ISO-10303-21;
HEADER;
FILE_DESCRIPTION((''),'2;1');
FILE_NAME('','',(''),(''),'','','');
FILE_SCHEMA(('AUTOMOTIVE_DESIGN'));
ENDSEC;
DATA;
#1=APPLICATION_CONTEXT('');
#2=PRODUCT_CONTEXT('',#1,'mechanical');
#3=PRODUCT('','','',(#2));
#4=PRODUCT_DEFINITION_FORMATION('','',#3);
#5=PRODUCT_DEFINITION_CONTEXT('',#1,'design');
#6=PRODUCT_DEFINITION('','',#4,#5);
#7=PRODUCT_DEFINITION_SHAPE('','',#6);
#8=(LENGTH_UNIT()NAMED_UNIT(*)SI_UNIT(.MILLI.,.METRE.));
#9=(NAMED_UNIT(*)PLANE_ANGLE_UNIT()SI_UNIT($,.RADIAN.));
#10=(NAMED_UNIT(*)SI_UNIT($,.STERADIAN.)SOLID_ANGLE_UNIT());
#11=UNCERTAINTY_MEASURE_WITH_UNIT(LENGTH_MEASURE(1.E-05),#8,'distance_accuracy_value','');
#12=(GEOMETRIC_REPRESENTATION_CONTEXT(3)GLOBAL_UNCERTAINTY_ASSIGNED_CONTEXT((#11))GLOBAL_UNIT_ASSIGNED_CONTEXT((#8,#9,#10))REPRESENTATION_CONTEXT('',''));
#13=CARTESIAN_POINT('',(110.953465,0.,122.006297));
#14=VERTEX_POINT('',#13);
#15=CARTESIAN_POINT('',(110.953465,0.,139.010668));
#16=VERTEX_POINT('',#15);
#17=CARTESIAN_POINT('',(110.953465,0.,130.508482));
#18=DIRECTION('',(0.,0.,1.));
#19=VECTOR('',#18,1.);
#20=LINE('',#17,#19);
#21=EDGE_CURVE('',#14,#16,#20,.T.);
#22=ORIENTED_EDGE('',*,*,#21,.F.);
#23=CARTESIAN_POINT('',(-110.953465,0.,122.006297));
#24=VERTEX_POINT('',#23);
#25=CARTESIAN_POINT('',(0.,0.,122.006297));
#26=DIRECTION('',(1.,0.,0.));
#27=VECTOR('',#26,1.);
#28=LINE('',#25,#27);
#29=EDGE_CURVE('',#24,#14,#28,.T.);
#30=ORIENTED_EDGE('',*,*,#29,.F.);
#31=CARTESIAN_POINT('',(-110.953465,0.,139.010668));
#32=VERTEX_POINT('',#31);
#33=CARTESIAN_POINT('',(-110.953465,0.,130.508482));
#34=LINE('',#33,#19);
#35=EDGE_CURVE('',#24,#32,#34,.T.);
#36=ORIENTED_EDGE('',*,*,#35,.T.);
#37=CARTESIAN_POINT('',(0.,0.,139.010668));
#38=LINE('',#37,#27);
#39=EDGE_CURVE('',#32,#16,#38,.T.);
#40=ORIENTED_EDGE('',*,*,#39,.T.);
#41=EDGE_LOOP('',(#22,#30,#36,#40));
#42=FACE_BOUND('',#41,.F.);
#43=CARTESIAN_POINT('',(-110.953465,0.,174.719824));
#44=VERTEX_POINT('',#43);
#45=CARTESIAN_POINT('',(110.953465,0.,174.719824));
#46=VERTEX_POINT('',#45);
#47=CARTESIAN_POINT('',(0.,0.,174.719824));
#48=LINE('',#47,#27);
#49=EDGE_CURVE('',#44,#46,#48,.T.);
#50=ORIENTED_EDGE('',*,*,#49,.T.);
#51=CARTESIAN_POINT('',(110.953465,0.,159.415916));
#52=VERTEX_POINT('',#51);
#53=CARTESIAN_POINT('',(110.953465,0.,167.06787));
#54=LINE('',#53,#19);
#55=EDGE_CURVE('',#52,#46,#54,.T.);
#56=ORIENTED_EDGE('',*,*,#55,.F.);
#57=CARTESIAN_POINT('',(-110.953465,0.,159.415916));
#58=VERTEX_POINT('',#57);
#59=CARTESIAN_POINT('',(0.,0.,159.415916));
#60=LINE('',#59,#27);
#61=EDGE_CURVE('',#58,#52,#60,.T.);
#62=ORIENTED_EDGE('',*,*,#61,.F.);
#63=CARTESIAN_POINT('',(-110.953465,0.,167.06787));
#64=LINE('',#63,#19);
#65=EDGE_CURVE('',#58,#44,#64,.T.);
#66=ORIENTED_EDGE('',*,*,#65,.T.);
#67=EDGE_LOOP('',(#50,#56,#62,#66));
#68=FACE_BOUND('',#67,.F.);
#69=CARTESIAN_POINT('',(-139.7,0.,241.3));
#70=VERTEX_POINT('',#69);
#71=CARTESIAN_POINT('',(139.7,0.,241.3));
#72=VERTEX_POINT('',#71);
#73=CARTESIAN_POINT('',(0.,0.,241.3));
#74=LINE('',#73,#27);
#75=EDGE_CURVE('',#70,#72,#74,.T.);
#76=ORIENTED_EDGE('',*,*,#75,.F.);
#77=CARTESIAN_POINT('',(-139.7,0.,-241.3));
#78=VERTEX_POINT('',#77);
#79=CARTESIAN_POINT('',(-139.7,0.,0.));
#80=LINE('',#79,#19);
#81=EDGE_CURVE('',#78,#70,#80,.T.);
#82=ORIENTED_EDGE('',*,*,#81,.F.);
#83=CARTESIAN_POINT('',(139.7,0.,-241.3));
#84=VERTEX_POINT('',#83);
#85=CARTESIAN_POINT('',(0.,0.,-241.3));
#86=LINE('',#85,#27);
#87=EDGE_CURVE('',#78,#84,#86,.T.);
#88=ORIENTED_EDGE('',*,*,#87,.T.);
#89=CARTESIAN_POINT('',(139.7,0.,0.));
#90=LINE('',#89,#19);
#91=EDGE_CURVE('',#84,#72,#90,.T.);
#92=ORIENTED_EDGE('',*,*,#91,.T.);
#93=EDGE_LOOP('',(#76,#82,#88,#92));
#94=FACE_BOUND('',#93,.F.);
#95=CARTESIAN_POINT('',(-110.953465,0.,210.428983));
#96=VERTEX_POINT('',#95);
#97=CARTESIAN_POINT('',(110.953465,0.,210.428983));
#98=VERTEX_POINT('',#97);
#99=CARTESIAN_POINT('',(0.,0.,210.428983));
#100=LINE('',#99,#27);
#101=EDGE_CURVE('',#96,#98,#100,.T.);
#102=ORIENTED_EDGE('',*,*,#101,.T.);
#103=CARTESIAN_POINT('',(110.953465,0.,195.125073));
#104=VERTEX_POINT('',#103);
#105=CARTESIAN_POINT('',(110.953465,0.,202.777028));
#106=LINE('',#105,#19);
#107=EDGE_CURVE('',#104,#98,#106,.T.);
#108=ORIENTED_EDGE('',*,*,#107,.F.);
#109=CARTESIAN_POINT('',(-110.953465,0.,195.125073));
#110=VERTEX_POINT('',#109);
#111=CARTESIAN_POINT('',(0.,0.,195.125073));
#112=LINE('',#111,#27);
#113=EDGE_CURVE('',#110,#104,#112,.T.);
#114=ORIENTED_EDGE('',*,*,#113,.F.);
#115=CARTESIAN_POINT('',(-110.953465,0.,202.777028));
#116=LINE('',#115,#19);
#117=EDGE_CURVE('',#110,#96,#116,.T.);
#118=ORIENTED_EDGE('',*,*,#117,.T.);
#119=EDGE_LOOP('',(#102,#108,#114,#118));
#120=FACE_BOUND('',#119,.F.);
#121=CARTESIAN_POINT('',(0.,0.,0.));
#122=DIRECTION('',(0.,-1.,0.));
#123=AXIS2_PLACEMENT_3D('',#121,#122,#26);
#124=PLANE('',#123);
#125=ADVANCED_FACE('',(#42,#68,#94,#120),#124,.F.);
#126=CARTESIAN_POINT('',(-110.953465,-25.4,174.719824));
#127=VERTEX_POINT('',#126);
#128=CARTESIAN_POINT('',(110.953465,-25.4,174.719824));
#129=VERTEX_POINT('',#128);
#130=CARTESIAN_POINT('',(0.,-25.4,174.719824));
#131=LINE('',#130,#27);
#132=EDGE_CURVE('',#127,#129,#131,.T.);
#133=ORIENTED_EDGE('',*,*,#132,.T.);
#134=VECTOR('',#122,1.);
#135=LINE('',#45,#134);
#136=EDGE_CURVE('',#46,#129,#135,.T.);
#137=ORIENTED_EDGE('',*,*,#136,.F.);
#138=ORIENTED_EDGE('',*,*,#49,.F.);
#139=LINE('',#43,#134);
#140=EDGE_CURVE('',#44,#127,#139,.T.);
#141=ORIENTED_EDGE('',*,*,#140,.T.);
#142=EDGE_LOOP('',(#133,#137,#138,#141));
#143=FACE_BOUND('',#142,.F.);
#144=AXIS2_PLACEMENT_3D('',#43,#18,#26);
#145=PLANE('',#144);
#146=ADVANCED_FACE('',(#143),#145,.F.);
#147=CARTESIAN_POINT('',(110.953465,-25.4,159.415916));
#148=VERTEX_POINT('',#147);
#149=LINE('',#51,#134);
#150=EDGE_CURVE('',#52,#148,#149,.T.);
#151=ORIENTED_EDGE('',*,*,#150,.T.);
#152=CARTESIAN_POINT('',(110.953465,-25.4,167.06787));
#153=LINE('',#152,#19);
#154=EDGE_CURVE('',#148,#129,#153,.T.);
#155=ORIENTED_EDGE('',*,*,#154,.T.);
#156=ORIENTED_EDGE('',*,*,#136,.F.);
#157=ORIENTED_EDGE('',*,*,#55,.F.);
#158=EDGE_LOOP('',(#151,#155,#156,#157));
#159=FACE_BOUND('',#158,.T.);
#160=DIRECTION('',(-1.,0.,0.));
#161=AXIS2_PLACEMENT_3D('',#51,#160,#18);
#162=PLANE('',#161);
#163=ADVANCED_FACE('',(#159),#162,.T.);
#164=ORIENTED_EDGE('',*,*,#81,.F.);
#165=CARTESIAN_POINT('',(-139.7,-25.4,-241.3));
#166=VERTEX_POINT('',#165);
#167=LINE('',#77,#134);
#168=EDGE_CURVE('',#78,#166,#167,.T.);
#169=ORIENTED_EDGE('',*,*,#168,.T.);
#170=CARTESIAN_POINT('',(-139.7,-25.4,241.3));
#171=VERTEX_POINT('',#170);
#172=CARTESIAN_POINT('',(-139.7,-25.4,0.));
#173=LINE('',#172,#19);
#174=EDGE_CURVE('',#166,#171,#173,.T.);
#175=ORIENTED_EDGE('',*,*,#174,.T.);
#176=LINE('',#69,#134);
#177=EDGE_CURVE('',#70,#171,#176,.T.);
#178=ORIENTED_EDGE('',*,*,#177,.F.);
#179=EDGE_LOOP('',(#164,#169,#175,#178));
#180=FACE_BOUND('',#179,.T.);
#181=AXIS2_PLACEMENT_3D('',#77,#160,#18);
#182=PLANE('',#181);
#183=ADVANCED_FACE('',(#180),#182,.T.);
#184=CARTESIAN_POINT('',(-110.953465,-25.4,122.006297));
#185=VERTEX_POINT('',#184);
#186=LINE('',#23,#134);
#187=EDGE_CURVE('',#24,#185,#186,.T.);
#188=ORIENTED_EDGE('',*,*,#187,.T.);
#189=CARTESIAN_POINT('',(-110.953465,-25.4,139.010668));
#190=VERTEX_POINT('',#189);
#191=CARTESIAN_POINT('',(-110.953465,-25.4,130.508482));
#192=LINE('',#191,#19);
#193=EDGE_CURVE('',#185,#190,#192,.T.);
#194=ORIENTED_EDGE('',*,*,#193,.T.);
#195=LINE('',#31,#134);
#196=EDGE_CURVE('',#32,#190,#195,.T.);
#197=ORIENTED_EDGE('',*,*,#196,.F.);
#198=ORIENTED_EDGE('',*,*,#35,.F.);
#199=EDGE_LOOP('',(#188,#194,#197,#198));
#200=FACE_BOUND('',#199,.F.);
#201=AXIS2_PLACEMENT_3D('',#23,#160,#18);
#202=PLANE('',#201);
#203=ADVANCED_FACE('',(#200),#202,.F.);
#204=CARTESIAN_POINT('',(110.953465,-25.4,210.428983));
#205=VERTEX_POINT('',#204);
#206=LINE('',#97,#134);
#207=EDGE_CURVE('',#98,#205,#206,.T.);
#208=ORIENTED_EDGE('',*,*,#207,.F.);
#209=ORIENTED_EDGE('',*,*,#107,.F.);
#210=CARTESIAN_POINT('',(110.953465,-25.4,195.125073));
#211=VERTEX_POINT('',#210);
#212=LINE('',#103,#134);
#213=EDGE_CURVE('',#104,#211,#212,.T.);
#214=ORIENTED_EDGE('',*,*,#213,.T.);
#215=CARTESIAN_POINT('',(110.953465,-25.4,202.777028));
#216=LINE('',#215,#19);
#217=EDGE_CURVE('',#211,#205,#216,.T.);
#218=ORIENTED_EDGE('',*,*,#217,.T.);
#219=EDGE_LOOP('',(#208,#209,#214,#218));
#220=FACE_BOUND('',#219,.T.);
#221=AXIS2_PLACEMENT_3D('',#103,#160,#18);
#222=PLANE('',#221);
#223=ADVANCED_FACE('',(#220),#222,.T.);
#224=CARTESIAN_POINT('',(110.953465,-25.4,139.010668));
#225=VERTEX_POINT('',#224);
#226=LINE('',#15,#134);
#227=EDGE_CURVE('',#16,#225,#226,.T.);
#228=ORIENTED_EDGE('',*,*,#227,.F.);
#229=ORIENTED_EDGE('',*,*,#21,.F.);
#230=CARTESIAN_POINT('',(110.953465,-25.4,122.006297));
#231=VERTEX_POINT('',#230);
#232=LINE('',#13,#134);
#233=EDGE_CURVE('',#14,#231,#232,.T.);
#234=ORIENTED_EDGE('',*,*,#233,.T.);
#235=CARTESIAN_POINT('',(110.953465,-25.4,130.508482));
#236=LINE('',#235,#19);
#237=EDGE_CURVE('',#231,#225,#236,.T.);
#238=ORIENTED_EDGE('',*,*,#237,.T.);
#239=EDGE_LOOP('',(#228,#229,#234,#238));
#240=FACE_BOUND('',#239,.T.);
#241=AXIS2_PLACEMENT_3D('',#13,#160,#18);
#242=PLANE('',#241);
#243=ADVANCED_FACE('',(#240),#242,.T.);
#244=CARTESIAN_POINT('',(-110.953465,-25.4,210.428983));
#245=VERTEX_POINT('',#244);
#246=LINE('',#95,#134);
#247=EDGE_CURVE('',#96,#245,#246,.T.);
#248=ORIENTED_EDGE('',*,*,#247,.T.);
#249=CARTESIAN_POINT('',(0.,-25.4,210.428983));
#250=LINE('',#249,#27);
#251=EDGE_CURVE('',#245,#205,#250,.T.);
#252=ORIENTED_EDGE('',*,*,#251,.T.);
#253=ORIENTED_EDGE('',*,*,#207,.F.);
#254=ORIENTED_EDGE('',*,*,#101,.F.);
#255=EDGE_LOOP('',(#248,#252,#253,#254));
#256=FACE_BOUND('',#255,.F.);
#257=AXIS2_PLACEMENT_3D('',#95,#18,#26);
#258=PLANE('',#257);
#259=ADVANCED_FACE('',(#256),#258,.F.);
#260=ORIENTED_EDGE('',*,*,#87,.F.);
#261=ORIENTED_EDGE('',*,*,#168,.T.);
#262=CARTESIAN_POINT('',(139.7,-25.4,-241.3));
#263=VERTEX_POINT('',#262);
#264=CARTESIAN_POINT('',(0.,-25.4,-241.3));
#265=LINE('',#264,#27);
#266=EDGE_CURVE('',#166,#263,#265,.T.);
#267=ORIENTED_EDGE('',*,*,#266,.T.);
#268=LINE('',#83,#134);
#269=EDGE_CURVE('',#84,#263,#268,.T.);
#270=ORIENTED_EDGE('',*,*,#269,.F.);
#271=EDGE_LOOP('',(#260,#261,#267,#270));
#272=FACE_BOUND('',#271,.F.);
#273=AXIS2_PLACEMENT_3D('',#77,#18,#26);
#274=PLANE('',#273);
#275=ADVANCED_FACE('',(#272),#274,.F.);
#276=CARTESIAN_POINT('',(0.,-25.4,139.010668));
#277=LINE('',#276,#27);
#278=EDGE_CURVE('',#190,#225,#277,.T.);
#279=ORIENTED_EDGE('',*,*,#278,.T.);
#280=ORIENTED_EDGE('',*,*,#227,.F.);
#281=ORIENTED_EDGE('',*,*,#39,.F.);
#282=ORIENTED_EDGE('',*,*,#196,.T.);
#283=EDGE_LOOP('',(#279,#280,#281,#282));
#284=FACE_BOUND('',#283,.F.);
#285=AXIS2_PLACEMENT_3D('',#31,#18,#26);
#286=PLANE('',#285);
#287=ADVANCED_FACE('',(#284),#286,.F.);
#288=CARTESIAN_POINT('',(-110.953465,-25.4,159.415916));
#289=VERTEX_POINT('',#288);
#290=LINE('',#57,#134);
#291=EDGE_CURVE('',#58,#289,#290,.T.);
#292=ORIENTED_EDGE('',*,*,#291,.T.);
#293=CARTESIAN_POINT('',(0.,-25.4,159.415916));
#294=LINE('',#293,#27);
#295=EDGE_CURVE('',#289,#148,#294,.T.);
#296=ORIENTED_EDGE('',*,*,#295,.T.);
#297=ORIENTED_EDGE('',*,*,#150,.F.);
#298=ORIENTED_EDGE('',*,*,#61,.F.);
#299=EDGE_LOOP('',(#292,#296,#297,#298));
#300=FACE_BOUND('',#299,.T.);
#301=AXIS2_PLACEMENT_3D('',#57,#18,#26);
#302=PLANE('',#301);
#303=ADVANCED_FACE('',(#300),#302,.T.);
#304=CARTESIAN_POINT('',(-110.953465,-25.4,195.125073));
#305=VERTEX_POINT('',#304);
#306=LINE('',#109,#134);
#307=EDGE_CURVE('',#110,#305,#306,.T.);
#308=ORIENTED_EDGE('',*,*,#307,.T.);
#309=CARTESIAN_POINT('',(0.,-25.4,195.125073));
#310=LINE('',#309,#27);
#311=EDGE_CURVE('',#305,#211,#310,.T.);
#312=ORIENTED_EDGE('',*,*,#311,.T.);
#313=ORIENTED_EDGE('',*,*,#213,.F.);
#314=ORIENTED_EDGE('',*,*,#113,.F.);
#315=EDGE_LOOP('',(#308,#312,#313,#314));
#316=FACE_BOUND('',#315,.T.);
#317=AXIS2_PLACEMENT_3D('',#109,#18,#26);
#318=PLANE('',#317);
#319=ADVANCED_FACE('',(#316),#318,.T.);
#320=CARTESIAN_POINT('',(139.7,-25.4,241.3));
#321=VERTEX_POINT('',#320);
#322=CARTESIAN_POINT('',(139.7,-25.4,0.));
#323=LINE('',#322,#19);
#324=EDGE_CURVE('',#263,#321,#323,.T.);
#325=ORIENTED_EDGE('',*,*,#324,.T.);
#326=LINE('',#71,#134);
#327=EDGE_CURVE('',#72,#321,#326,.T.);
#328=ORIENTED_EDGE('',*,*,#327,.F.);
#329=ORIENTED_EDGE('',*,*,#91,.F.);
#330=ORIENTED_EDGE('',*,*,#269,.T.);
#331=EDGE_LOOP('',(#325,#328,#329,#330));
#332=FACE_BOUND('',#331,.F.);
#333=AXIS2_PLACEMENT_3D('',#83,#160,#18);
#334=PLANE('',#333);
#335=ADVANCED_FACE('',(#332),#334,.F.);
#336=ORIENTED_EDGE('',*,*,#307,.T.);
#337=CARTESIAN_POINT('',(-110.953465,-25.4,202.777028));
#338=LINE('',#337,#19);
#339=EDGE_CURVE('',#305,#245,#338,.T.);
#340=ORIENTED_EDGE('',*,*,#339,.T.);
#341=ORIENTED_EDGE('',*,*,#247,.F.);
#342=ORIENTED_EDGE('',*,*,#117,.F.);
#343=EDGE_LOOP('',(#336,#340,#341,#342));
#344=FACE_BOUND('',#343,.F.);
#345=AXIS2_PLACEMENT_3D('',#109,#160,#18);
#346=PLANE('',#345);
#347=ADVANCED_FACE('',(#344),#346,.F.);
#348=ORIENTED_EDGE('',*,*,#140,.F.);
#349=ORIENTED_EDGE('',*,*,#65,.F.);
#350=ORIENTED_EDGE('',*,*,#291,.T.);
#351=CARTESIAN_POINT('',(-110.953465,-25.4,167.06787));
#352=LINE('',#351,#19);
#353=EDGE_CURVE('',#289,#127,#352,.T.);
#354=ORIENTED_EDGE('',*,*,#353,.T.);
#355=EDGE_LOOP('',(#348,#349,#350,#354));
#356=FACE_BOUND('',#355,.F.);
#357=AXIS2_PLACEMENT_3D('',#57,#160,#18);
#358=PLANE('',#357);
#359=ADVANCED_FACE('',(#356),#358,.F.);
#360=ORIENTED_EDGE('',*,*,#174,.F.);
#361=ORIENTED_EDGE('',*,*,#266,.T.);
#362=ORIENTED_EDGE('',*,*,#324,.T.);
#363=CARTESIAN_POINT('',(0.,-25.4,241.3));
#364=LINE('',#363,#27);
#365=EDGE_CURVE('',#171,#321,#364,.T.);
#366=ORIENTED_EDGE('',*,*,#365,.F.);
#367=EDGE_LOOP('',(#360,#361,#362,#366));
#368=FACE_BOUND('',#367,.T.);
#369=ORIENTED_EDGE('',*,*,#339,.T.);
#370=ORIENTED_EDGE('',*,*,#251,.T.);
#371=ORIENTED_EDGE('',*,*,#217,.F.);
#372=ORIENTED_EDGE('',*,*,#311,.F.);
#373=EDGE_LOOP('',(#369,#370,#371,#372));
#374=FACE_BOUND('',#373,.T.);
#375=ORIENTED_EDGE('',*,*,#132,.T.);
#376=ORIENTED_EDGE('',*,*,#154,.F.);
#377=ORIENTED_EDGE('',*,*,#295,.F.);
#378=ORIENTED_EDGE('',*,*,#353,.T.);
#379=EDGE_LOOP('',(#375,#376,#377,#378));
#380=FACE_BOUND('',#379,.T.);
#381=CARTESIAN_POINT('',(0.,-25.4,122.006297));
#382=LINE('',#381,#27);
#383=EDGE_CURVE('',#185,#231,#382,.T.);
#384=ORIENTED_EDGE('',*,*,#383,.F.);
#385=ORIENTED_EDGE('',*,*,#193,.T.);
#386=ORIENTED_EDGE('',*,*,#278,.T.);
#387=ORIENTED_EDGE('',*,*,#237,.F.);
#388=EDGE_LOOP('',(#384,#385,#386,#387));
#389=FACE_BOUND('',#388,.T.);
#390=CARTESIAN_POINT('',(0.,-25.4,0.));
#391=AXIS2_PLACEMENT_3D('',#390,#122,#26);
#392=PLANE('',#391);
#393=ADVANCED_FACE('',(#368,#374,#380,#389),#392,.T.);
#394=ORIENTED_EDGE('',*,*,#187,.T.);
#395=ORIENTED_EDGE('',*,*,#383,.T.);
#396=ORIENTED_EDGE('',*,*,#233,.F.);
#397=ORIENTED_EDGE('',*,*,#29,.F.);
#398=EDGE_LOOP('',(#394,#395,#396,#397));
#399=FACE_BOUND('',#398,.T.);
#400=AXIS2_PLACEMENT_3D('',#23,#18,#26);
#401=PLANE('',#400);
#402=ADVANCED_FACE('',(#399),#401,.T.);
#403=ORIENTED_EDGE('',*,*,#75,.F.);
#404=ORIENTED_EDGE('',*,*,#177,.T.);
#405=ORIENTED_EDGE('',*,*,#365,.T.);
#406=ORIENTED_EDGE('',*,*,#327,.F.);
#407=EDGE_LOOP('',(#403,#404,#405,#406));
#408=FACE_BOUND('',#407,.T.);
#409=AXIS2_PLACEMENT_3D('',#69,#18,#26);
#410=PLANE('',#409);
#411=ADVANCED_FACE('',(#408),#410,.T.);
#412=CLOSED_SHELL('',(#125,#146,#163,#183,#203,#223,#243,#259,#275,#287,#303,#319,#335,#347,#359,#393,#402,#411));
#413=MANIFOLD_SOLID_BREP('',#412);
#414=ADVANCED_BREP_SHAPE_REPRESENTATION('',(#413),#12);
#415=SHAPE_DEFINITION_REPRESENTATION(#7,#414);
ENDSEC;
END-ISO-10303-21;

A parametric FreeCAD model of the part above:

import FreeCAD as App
import Part
import Sketcher

V = App.Vector
Q = App.Units.Quantity


def add_polygon(sketch, points):
    """Adds a closed chain of lines whose ends are joined by coincident constraints."""
    first, n = sketch.GeometryCount, len(points)
    for a, b in zip(points, points[1:] + points[:1]):
        sketch.addGeometry(Part.LineSegment(App.Vector(*a, 0), App.Vector(*b, 0)), False)
    for i in range(n):
        sketch.addConstraint(Sketcher.Constraint("Coincident", first + i, 2, first + (i + 1) % n, 1))

doc = App.newDocument("Part")
body = doc.addObject("PartDesign::Body", "Body")

# Sketch on XZ plane
sketch1 = doc.addObject("Sketcher::SketchObject", "Sketch")
body.addObject(sketch1)
sketch1.AttachmentSupport = (doc.XZ_Plane, [""])
sketch1.MapMode = "FlatFace"
add_polygon(sketch1, [(-140, 241), (-140, -241), (140, -241), (140, 241)])  # lines 0-3
add_polygon(sketch1, [(111, 122), (-111, 122), (-111, 139), (111, 139)])  # lines 4-7
add_polygon(sketch1, [(111, 159), (-111, 159), (-111, 175), (111, 175)])  # lines 8-11
add_polygon(sketch1, [(111, 195), (-111, 195), (-111, 210), (111, 210)])  # lines 12-15
sketch1.addConstraint([
    Sketcher.Constraint("Vertical", 0),
    Sketcher.Constraint("Horizontal", 1),
    Sketcher.Constraint("Vertical", 2),
    Sketcher.Constraint("Horizontal", 3),
    Sketcher.Constraint("Horizontal", 4),
    Sketcher.Constraint("Vertical", 5),
    Sketcher.Constraint("Horizontal", 6),
    Sketcher.Constraint("Vertical", 7),
    Sketcher.Constraint("Horizontal", 8),
    Sketcher.Constraint("Vertical", 9),
    Sketcher.Constraint("Horizontal", 10),
    Sketcher.Constraint("Vertical", 11),
    Sketcher.Constraint("Horizontal", 12),
    Sketcher.Constraint("Vertical", 13),
    Sketcher.Constraint("Horizontal", 14),
    Sketcher.Constraint("Vertical", 15),
    Sketcher.Constraint("Symmetric", 0, 2, 2, 2, -1, 1),
    Sketcher.Constraint("Vertical", 5, 2, 8, 2),
    Sketcher.Constraint("Vertical", 7, 2, 10, 2),
    Sketcher.Constraint("Vertical", 9, 2, 12, 2),
    Sketcher.Constraint("Vertical", 11, 2, 14, 2),
    Sketcher.Constraint("Equal", 11, 13),
    Sketcher.Constraint("DistanceX", 1, 1, 1, 2, Q("11 in")),
    Sketcher.Constraint("DistanceY", 0, 2, 0, 1, Q("19 in")),
    Sketcher.Constraint("DistanceX", 4, 2, 4, 1, 221.90693),
    Sketcher.Constraint("DistanceY", 5, 1, 5, 2, 17.004371),
    Sketcher.Constraint("DistanceY", 9, 1, 9, 2, 15.303909),
    Sketcher.Constraint("DistanceY", 5, 2, 8, 2, 20.405248),
    Sketcher.Constraint("DistanceY", 9, 2, 12, 2, 20.405248),
    Sketcher.Constraint("DistanceX", 4, 2, -1, 1, 110.953465),
    Sketcher.Constraint("DistanceY", -1, 1, 4, 2, 122.006297),
])
pad1 = doc.addObject("PartDesign::Pad", "Pad")
body.addObject(pad1)
pad1.Profile = sketch1
pad1.Length = Q("1 in")

doc.recompute()
